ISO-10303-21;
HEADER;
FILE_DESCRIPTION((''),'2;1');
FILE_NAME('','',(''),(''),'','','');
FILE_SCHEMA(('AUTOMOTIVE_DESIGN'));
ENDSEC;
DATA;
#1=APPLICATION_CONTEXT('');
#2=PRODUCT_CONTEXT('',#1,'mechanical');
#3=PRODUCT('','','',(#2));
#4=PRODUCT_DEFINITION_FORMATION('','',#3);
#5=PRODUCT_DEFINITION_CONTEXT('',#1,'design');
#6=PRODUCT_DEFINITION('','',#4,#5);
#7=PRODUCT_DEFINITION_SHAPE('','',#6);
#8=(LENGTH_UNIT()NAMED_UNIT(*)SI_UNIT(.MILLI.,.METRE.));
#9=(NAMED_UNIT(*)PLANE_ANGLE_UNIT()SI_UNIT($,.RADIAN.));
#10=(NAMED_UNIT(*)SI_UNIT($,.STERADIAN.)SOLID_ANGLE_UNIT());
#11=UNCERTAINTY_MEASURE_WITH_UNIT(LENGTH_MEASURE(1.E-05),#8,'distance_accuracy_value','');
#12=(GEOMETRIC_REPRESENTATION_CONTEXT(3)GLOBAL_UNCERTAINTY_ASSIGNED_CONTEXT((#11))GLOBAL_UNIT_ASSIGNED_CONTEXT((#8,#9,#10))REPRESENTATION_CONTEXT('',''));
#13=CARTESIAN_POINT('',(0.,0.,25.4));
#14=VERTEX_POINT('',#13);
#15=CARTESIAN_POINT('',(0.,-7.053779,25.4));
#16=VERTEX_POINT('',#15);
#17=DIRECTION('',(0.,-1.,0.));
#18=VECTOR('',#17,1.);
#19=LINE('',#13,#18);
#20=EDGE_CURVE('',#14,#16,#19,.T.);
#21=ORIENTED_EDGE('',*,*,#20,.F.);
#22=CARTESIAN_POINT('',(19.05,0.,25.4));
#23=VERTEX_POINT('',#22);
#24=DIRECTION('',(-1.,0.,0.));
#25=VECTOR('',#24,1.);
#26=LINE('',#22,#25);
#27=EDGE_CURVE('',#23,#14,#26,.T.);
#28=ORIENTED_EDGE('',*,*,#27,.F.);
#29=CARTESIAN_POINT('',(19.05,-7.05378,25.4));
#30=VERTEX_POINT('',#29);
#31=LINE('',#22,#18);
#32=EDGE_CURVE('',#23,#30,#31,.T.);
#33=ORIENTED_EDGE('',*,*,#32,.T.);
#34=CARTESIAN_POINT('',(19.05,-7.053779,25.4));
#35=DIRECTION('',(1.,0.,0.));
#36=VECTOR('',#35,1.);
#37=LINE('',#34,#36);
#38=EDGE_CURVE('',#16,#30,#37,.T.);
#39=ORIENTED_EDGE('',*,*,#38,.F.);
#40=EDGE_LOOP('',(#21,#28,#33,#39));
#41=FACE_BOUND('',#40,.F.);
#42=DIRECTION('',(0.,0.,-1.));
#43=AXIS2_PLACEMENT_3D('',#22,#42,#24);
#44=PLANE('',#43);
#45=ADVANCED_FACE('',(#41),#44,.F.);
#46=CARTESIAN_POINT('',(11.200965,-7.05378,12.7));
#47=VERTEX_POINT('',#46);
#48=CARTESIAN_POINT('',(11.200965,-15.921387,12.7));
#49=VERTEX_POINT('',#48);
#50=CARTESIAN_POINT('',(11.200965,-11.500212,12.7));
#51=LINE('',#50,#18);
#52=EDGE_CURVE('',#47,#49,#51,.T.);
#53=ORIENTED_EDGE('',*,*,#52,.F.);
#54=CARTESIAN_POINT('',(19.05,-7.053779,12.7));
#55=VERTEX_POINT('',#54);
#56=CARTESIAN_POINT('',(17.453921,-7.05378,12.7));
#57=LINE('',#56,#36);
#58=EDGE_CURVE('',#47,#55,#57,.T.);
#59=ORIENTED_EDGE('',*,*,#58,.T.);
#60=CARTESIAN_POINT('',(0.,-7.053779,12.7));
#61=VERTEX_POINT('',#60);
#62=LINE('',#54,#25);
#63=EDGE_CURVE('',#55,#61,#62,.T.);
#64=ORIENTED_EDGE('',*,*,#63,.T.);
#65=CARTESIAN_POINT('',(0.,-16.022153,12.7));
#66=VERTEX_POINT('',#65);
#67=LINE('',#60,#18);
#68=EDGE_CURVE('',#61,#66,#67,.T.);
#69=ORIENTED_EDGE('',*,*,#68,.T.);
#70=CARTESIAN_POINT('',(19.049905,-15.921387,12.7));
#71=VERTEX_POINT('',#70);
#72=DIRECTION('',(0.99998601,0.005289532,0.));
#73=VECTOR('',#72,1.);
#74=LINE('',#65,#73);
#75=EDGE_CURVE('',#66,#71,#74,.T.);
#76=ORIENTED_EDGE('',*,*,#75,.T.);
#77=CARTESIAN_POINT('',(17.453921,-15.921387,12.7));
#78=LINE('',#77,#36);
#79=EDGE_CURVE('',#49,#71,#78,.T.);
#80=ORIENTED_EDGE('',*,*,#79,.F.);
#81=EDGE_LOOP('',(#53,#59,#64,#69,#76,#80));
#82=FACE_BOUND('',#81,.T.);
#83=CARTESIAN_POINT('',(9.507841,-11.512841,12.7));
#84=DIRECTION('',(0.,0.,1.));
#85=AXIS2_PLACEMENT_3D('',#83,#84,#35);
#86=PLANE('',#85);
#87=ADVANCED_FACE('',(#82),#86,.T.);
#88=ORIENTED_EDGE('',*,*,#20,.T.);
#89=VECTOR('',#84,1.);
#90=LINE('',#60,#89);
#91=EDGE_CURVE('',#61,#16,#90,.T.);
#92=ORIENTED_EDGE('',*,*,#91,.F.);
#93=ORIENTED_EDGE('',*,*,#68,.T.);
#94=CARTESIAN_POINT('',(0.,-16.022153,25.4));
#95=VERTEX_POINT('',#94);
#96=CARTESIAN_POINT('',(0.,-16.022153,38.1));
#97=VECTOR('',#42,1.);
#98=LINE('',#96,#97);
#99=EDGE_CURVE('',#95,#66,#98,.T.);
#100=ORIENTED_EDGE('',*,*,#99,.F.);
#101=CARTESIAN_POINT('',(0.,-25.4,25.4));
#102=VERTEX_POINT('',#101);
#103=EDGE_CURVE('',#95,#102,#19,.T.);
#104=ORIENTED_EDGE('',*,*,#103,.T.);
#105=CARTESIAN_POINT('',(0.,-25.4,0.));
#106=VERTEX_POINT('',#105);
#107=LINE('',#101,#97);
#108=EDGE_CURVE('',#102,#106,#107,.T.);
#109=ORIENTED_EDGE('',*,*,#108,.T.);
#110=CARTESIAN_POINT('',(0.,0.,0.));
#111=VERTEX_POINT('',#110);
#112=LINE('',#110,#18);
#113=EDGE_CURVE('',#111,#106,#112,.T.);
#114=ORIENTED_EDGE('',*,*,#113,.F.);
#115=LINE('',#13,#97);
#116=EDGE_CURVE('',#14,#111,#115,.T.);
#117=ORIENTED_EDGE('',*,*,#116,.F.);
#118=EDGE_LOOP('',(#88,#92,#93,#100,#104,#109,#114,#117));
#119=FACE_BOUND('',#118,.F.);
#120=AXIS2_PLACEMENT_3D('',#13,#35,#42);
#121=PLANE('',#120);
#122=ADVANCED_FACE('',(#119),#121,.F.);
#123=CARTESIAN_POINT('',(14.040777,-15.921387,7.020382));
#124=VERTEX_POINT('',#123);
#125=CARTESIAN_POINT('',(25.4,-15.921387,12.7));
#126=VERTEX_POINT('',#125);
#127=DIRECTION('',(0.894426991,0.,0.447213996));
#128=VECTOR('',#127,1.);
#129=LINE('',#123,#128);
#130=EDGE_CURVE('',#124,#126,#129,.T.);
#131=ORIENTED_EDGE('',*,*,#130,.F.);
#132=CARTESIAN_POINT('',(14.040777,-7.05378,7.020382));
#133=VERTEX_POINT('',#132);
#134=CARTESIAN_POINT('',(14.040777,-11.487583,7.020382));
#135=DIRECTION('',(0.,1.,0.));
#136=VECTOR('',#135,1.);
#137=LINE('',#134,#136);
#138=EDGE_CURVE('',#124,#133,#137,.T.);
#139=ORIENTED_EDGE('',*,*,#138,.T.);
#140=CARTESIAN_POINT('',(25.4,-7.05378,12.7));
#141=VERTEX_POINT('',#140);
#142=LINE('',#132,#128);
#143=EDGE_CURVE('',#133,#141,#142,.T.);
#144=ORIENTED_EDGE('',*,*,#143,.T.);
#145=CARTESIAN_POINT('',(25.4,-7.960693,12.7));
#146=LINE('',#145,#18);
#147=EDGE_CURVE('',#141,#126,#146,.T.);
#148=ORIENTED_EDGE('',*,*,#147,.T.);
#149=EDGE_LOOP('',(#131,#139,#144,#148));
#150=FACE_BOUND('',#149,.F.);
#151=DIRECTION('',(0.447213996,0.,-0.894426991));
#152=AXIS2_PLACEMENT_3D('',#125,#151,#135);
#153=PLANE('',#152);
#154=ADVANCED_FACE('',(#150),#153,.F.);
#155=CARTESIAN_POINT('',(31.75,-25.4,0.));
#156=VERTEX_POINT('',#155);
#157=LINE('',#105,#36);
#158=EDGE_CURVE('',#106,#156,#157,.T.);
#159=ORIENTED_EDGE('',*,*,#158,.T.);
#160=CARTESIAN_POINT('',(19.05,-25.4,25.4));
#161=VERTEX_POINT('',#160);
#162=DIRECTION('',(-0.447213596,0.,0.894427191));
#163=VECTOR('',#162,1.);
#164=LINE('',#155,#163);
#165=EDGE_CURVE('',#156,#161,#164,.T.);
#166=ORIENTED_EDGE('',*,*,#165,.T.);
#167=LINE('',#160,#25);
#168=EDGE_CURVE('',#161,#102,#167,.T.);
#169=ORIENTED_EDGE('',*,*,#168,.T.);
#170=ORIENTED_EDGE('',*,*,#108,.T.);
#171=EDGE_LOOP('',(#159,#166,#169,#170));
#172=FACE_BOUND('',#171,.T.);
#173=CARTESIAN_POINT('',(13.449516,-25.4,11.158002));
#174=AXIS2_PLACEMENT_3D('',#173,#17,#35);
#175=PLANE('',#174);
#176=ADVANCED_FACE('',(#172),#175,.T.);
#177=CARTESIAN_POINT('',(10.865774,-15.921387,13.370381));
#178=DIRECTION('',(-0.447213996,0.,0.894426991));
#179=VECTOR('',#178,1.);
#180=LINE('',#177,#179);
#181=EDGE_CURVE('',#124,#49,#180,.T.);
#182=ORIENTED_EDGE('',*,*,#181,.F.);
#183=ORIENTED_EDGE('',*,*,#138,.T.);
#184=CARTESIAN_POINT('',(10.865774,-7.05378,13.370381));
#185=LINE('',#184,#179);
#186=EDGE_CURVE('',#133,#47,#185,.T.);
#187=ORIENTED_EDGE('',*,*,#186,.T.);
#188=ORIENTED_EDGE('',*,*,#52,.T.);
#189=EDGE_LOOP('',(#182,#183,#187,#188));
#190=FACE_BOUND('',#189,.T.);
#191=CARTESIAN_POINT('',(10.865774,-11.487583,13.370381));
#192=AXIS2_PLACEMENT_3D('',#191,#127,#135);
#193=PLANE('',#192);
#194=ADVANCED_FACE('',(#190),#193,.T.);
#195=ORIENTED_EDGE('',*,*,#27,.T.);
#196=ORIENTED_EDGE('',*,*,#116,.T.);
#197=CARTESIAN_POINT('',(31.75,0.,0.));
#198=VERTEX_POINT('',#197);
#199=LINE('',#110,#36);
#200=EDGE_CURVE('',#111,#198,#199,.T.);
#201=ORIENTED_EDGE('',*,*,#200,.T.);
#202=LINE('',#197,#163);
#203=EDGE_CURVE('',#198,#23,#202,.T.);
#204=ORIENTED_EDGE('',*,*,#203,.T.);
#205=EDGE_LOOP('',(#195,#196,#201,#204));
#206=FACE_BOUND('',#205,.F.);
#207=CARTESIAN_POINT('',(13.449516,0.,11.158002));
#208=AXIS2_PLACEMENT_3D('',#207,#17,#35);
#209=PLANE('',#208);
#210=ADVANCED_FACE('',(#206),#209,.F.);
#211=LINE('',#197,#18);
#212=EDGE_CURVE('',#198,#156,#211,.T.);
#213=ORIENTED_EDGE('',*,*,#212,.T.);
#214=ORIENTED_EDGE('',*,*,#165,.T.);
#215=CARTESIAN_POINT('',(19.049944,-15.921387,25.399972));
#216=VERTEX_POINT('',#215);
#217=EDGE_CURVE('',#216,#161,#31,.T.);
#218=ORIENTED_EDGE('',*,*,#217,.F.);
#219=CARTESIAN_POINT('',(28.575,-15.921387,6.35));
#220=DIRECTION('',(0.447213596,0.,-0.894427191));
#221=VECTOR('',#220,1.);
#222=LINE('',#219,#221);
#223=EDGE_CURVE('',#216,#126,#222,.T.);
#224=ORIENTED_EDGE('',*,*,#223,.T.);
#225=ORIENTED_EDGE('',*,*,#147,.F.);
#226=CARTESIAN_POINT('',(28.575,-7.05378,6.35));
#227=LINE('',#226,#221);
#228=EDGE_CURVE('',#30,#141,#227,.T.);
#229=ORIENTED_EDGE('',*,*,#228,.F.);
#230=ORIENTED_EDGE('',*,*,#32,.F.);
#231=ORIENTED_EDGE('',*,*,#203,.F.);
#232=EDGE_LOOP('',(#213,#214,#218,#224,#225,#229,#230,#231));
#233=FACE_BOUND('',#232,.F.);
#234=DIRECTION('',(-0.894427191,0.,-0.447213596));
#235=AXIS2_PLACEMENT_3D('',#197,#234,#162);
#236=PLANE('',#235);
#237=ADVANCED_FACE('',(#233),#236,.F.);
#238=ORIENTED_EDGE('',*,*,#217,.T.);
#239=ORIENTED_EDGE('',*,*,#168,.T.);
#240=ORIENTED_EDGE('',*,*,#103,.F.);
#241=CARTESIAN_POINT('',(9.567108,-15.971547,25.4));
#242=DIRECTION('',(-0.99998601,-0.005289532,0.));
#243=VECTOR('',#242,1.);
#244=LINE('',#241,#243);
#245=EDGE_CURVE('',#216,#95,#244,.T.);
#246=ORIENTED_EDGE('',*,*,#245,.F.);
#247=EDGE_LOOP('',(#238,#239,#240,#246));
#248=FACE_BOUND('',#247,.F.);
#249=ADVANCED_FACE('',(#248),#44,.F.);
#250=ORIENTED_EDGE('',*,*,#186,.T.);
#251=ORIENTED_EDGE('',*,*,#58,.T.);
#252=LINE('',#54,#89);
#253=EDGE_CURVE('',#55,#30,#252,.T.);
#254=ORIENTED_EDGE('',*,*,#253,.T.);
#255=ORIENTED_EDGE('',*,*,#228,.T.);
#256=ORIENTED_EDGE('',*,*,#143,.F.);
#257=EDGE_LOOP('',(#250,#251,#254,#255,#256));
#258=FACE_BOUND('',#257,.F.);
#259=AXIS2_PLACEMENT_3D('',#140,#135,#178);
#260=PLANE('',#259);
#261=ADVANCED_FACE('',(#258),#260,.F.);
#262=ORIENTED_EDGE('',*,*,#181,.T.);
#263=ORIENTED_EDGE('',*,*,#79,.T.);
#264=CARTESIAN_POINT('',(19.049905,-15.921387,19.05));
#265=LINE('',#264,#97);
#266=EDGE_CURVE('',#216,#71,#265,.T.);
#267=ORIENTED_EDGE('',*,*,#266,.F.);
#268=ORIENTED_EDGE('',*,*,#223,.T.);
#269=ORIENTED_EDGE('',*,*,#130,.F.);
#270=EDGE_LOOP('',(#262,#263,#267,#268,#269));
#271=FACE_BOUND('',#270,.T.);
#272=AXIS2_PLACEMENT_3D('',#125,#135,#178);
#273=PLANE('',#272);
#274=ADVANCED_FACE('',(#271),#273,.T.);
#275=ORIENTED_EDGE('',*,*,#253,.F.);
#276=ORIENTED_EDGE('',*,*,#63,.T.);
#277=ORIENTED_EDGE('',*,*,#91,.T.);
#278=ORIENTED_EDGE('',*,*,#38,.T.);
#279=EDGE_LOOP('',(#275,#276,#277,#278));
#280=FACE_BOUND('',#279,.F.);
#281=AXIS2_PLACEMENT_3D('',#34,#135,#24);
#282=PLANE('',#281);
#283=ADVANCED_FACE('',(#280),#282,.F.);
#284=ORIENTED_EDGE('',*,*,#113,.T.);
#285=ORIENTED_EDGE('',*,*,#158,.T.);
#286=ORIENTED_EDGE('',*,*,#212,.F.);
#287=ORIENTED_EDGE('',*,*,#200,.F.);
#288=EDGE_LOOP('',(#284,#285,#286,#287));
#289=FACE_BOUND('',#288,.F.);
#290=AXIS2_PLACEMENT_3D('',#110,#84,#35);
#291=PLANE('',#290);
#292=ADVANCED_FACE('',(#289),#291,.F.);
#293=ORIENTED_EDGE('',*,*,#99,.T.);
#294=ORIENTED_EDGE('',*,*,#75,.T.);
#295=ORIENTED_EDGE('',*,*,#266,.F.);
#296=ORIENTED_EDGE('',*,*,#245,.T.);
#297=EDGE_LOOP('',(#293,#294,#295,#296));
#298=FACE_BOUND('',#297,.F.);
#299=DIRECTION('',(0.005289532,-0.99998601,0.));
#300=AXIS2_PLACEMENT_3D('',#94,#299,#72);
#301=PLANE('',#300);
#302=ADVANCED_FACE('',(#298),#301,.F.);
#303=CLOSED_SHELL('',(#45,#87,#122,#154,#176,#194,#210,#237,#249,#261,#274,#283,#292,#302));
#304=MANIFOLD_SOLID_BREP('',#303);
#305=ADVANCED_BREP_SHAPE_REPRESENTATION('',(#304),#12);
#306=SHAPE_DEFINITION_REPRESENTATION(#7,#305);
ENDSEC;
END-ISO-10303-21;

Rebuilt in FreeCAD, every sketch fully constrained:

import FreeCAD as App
import Part
import Sketcher
Q = App.Units.Quantity


def add_polygon(sketch, points):
    """Adds a closed chain of lines whose ends are joined by coincident constraints."""
    first, n = sketch.GeometryCount, len(points)
    for a, b in zip(points, points[1:] + points[:1]):
        sketch.addGeometry(Part.LineSegment(App.Vector(*a, 0), App.Vector(*b, 0)), False)
    for i in range(n):
        sketch.addConstraint(Sketcher.Constraint("Coincident", first + i, 2, first + (i + 1) % n, 1))

doc = App.newDocument("Part")
body = doc.addObject("PartDesign::Body", "Body")

# Sketch on XZ plane
sketch1 = body.newObject("Sketcher::SketchObject", "Sketch")
sketch1.AttachmentSupport = (doc.getObject("XZ_Plane"), [""])
sketch1.MapMode = "FlatFace"
add_polygon(sketch1, [(0, 25), (0, 0), (32, 0), (19, 25)])  # lines 0-3
sketch1.addConstraint([
    Sketcher.Constraint("Vertical", 0),
    Sketcher.Constraint("Horizontal", 1),
    Sketcher.Constraint("Horizontal", 3),
    Sketcher.Constraint("Coincident", 0, 2, -1, 1),
    Sketcher.Constraint("DistanceY", 0, 2, 0, 1, Q("1 in")),
    Sketcher.Constraint("DistanceX", 1, 1, 1, 2, Q("1.25 in")),
    Sketcher.Constraint("DistanceX", 3, 2, 3, 1, Q("0.75 in")),
])
pad1 = body.newObject("PartDesign::Pad", "Pad")
pad1.Profile = sketch1
pad1.Length = Q("1 in")

# Sketch on an angled plane
sketch2 = body.newObject("Sketcher::SketchObject", "Sketch001")
sketch2.Placement = App.Placement(App.Vector(25.4, 0, 12.7), App.Rotation(App.Vector(0, 1, 0), App.Vector(-0.447213995, 0, 0.894426991), App.Vector(0.894426991, 0, 0.447213995), "ZXY"))
add_polygon(sketch2, [(-16, 14), (-16, 0), (-7, 0), (-7, 14)])  # lines 0-3
sketch2.addConstraint([
    Sketcher.Constraint("Vertical", 0),
    Sketcher.Constraint("Horizontal", 1),
    Sketcher.Constraint("Vertical", 2),
    Sketcher.Constraint("Horizontal", 3),
    Sketcher.Constraint("PointOnObject", 0, 2, -1),
    Sketcher.Constraint("DistanceY", 0, 2, 0, 1, 14.199032),
    Sketcher.Constraint("DistanceX", 1, 1, 1, 2, 8.867607),
    Sketcher.Constraint("DistanceX", 1, 2, -1, 1, 7.05378),
])
pocket1 = body.newObject("PartDesign::Pocket", "Pocket")
pocket1.Profile = sketch2
pocket1.Length = Q("1 in")
pocket1.Midplane = True

# Sketch on XY plane
sketch3 = body.newObject("Sketcher::SketchObject", "Sketch002")
sketch3.AttachmentSupport = (doc.getObject("XY_Plane"), [""])
sketch3.MapMode = "FlatFace"
sketch3.AttachmentOffset = App.Placement(App.Vector(0, 0, 1 * 25.4), App.Rotation())
add_polygon(sketch3, [(19, -16), (19, -7), (0, -7), (0, -16)])  # lines 0-3
sketch3.addConstraint([
    Sketcher.Constraint("Vertical", 0),
    Sketcher.Constraint("Horizontal", 1),
    Sketcher.Constraint("Vertical", 2),
    Sketcher.Constraint("PointOnObject", 1, 2, -2),
    Sketcher.Constraint("DistanceX", 1, 2, 1, 1, Q("0.75 in")),
    Sketcher.Constraint("DistanceY", 0, 1, 0, 2, 8.867607),
    Sketcher.Constraint("DistanceY", 2, 2, 2, 1, 8.968374),
    Sketcher.Constraint("DistanceY", 0, 2, -1, 1, 7.053779),
])
pocket2 = body.newObject("PartDesign::Pocket", "Pocket001")
pocket2.Profile = sketch3
pocket2.Length = Q("1 in")
pocket2.Midplane = True

doc.recompute()
